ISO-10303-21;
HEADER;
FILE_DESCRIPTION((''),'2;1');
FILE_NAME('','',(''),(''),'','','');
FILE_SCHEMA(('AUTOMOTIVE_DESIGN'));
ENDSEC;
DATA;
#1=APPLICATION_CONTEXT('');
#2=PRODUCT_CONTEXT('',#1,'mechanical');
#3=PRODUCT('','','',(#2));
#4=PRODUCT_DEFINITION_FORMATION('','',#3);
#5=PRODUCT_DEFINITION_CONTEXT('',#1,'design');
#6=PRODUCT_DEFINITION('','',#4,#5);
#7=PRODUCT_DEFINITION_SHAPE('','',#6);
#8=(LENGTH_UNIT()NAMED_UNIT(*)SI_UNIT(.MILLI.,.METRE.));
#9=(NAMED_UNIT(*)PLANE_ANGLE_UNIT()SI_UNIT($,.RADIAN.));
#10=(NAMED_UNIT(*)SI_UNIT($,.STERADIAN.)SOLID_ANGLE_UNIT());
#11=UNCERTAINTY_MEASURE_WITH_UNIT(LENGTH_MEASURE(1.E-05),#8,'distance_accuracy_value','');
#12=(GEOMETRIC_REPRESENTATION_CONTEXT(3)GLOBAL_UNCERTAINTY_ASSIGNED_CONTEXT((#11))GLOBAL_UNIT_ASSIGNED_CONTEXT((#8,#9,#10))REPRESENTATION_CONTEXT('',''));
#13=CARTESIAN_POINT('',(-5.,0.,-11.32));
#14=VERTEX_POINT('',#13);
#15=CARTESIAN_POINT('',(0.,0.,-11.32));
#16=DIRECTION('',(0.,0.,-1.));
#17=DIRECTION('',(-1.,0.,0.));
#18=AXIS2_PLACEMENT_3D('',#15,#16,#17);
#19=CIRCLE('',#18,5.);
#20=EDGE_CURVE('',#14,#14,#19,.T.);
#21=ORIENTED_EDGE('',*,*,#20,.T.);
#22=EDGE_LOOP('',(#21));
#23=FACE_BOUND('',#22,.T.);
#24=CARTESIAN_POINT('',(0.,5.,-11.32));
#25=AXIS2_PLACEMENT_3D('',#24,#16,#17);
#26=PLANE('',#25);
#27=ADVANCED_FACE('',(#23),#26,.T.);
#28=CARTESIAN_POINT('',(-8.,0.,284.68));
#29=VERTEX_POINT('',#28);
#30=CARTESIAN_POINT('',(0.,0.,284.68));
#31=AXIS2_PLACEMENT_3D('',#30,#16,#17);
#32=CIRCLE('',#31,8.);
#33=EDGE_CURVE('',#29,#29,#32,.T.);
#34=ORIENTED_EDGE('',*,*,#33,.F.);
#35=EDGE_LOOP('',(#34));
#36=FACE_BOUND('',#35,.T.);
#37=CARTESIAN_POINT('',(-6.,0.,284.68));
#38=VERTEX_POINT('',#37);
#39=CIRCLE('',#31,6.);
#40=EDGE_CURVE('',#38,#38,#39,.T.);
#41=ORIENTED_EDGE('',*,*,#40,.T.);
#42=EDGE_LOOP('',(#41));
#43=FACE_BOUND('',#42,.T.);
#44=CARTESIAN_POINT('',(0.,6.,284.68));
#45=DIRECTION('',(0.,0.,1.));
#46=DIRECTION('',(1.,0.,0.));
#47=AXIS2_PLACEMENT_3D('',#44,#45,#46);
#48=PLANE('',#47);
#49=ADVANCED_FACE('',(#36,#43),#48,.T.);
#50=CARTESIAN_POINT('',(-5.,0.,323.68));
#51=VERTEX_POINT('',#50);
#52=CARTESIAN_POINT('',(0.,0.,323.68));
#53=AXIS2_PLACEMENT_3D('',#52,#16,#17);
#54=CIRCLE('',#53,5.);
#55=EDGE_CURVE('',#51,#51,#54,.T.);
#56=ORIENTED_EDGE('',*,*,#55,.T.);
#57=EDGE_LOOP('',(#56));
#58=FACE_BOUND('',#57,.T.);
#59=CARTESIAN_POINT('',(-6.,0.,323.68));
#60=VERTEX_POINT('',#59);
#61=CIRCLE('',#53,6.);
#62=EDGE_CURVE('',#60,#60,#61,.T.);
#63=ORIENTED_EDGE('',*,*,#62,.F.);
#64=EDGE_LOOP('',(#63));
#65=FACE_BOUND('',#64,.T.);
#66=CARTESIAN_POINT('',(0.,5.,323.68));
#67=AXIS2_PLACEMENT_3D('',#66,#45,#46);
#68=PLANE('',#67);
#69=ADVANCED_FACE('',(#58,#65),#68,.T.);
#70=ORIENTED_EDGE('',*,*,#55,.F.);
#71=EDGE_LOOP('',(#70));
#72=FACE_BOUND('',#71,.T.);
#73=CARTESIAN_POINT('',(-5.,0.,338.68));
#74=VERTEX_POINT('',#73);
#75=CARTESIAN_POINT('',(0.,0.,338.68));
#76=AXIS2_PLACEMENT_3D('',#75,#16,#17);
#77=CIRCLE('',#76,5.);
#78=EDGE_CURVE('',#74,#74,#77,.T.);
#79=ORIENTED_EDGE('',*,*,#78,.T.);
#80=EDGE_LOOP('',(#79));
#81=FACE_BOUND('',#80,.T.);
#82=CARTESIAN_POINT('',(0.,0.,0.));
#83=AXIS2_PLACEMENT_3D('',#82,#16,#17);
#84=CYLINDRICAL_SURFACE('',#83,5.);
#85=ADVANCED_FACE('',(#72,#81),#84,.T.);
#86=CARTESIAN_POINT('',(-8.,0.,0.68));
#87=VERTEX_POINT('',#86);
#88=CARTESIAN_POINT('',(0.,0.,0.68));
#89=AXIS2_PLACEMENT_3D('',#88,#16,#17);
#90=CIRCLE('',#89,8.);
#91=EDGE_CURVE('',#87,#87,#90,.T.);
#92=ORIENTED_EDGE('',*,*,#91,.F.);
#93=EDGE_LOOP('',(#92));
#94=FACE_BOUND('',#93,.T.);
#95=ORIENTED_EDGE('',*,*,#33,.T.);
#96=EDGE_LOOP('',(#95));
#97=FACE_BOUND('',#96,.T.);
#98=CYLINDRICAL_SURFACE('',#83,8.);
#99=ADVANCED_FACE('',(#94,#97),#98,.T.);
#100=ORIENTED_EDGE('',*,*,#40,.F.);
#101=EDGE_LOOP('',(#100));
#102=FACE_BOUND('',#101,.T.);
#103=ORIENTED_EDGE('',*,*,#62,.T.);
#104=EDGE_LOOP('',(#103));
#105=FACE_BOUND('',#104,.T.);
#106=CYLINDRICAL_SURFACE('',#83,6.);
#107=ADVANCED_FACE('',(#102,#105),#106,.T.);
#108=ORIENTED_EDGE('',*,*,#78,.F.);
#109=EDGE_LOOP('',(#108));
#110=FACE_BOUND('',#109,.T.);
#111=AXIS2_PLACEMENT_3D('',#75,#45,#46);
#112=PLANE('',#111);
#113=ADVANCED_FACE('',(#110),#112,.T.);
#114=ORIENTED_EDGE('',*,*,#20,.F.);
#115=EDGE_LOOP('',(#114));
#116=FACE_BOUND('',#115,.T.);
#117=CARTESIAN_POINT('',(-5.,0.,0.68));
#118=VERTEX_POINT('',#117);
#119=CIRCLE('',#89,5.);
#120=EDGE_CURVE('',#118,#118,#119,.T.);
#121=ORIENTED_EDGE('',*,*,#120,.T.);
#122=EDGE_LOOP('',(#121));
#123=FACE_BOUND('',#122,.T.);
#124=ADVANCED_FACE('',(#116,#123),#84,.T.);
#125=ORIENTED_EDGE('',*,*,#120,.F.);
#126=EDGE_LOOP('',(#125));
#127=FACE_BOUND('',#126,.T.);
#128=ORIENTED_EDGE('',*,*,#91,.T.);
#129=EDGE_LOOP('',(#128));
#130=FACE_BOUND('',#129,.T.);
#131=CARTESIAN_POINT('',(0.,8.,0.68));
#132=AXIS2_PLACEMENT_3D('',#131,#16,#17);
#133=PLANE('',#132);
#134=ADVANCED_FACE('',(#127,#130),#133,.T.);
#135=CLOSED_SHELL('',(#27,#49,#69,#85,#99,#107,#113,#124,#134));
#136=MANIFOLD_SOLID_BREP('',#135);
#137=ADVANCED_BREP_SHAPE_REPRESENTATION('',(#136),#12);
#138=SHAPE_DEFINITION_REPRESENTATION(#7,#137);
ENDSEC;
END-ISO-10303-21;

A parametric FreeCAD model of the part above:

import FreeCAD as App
import Part
import Sketcher


def add_polygon(sketch, points):
    """Adds a closed chain of lines whose ends are joined by coincident constraints."""
    first, n = sketch.GeometryCount, len(points)
    for a, b in zip(points, points[1:] + points[:1]):
        sketch.addGeometry(Part.LineSegment(App.Vector(*a, 0), App.Vector(*b, 0)), False)
    for i in range(n):
        sketch.addConstraint(Sketcher.Constraint("Coincident", first + i, 2, first + (i + 1) % n, 1))

doc = App.newDocument("Part")
body = doc.addObject("PartDesign::Body", "Body")

# Sketch on YZ plane
sketch1 = body.newObject("Sketcher::SketchObject", "Sketch")
sketch1.AttachmentSupport = (doc.getObject("YZ_Plane"), [""])
sketch1.MapMode = "FlatFace"
add_polygon(sketch1, [(5, 338.7), (0, 338.7), (0, -11.3), (5, -11.3), (5, 0.7), (8, 0.7), (8, 284.7), (6, 284.7), (6, 323.7), (5, 323.7)])  # lines 0-9
sketch1.addConstraint([
    Sketcher.Constraint("Horizontal", 0),
    Sketcher.Constraint("Vertical", 1),
    Sketcher.Constraint("Horizontal", 2),
    Sketcher.Constraint("Vertical", 3),
    Sketcher.Constraint("Horizontal", 4),
    Sketcher.Constraint("Vertical", 5),
    Sketcher.Constraint("Horizontal", 6),
    Sketcher.Constraint("Vertical", 7),
    Sketcher.Constraint("Horizontal", 8),
    Sketcher.Constraint("Vertical", 9),
    Sketcher.Constraint("PointOnObject", 0, 2, -2),
    Sketcher.Constraint("Vertical", 3, 2, 8, 2),
    Sketcher.Constraint("DistanceX", 0, 2, 0, 1, 5.0),
    Sketcher.Constraint("DistanceX", 4, 1, 4, 2, 3.0),
    Sketcher.Constraint("DistanceX", 6, 2, 6, 1, 2.0),
    Sketcher.Constraint("DistanceY", 1, 2, 1, 1, 350.0),
    Sketcher.Constraint("DistanceY", 3, 1, 3, 2, 12.0),
    Sketcher.Constraint("DistanceY", 5, 1, 5, 2, 284.0),
    Sketcher.Constraint("DistanceY", 7, 1, 7, 2, 39.0),
    Sketcher.Constraint("DistanceY", -1, 1, 0, 2, 338.68),
])
revolution = body.newObject("PartDesign::Revolution", "Revolution")
revolution.Profile = sketch1
revolution.ReferenceAxis = (sketch1, ["V_Axis"])
revolution.Angle = 360

doc.recompute()
